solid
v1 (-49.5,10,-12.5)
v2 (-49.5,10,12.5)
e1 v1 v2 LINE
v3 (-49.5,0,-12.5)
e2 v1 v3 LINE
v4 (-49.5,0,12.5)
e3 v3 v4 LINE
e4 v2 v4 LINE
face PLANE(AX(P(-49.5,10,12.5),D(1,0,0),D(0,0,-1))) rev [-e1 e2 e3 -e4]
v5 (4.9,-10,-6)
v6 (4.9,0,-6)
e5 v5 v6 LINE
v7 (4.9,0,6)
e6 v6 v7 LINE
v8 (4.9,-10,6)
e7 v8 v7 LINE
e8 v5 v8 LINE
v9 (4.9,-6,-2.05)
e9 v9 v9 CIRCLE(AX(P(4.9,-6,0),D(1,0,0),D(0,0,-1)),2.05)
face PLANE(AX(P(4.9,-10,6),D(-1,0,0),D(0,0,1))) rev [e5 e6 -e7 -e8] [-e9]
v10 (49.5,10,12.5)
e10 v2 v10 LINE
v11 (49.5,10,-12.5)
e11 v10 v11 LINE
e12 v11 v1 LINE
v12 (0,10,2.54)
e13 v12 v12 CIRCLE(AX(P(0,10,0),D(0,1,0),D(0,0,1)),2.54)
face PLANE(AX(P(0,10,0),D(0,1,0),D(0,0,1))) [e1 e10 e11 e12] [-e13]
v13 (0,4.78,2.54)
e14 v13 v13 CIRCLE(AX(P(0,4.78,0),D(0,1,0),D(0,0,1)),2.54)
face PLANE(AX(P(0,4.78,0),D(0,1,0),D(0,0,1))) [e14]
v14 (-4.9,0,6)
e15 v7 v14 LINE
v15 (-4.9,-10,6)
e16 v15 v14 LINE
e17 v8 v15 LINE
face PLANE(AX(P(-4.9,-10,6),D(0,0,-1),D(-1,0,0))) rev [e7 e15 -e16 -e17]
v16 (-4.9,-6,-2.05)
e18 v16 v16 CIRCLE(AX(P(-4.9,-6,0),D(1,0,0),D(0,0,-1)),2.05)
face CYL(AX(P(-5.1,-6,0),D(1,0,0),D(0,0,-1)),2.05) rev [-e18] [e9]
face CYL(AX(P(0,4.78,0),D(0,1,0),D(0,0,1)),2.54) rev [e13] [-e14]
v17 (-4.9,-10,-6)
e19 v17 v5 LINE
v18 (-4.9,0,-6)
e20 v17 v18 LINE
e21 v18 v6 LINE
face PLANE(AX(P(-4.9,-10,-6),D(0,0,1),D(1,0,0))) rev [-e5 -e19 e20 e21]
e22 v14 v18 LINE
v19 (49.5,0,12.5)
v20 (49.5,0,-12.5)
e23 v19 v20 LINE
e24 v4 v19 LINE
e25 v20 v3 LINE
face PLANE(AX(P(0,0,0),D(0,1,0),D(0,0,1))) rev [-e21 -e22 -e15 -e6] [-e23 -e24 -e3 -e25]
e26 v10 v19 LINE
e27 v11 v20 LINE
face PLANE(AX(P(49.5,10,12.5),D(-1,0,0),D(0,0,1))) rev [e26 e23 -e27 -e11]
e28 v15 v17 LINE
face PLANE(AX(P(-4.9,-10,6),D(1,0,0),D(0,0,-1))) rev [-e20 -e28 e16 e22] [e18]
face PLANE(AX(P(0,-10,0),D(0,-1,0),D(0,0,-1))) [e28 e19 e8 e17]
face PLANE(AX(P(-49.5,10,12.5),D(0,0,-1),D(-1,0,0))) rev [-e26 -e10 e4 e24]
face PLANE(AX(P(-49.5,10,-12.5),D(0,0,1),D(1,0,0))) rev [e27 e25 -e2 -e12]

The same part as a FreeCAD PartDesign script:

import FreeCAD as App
import Part
import Sketcher
Q = App.Units.Quantity

doc = App.newDocument("Part")
body = doc.addObject("PartDesign::Body", "Body")

# Sketch on XZ plane
sketch1 = doc.addObject("Sketcher::SketchObject", "Sketch")
body.addObject(sketch1)
sketch1.AttachmentSupport = (doc.XZ_Plane, [""])
sketch1.MapMode = "FlatFace"
sketch1.addGeometry(Part.LineSegment(App.Vector(-50, -12, 0), App.Vector(-50, 12, 0)), False)
sketch1.addGeometry(Part.LineSegment(App.Vector(-50, 12, 0), App.Vector(50, 12, 0)), False)
sketch1.addGeometry(Part.LineSegment(App.Vector(50, 12, 0), App.Vector(50, -12, 0)), False)
sketch1.addGeometry(Part.LineSegment(App.Vector(50, -12, 0), App.Vector(-50, -12, 0)), False)
sketch1.addConstraint(Sketcher.Constraint("Coincident", 0, 2, 1, 1))
sketch1.addConstraint(Sketcher.Constraint("Coincident", 1, 2, 2, 1))
sketch1.addConstraint(Sketcher.Constraint("Coincident", 2, 2, 3, 1))
sketch1.addConstraint(Sketcher.Constraint("Coincident", 3, 2, 0, 1))
sketch1.addConstraint(Sketcher.Constraint("Vertical", 0))
sketch1.addConstraint(Sketcher.Constraint("Horizontal", 1))
sketch1.addConstraint(Sketcher.Constraint("Vertical", 2))
sketch1.addConstraint(Sketcher.Constraint("Horizontal", 3))
sketch1.addConstraint(Sketcher.Constraint("Symmetric", 0, 2, 2, 2, -1, 1))
sketch1.addConstraint(Sketcher.Constraint("DistanceX", 1, 1, 1, 2, Q("99 mm")))
sketch1.addConstraint(Sketcher.Constraint("DistanceY", 0, 1, 0, 2, Q("25 mm")))
pad1 = doc.addObject("PartDesign::Pad", "Pad")
body.addObject(pad1)
pad1.Profile = sketch1
pad1.Length = 10
pad1.Reversed = True

# Sketch on XZ plane
sketch2 = doc.addObject("Sketcher::SketchObject", "Sketch001")
body.addObject(sketch2)
sketch2.AttachmentSupport = (doc.XZ_Plane, [""])
sketch2.MapMode = "FlatFace"
sketch2.addGeometry(Part.LineSegment(App.Vector(-5, 6, 0), App.Vector(-5, -6, 0)), False)
sketch2.addGeometry(Part.LineSegment(App.Vector(-5, -6, 0), App.Vector(5, -6, 0)), False)
sketch2.addGeometry(Part.LineSegment(App.Vector(5, -6, 0), App.Vector(5, 6, 0)), False)
sketch2.addGeometry(Part.LineSegment(App.Vector(5, 6, 0), App.Vector(-5, 6, 0)), False)
sketch2.addConstraint(Sketcher.Constraint("Coincident", 0, 2, 1, 1))
sketch2.addConstraint(Sketcher.Constraint("Coincident", 1, 2, 2, 1))
sketch2.addConstraint(Sketcher.Constraint("Coincident", 2, 2, 3, 1))
sketch2.addConstraint(Sketcher.Constraint("Coincident", 3, 2, 0, 1))
sketch2.addConstraint(Sketcher.Constraint("Vertical", 0))
sketch2.addConstraint(Sketcher.Constraint("Horizontal", 1))
sketch2.addConstraint(Sketcher.Constraint("Vertical", 2))
sketch2.addConstraint(Sketcher.Constraint("Horizontal", 3))
sketch2.addConstraint(Sketcher.Constraint("Symmetric", 0, 2, 2, 2, -1, 1))
sketch2.addConstraint(Sketcher.Constraint("DistanceY", 0, 2, 0, 1, Q("12 mm")))
sketch2.addConstraint(Sketcher.Constraint("DistanceX", 1, 1, 1, 2, Q("9.8 mm")))
pad2 = doc.addObject("PartDesign::Pad", "Pad001")
body.addObject(pad2)
pad2.Profile = sketch2
pad2.Length = 10

# Sketch on XZ plane
sketch3 = doc.addObject("Sketcher::SketchObject", "Sketch002")
body.addObject(sketch3)
sketch3.AttachmentSupport = (doc.XZ_Plane, [""])
sketch3.MapMode = "FlatFace"
sketch3.AttachmentOffset = App.Placement(App.Vector(0, 0, -10), App.Rotation())
sketch3.addGeometry(Part.Circle(App.Vector(0, 0, 0), App.Vector(0, 0, 1), 2.5), False)
sketch3.addConstraint(Sketcher.Constraint("Coincident", 0, 3, -1, 1))
sketch3.addConstraint(Sketcher.Constraint("Diameter", 0, Q("5.08 mm")))
pocket1 = doc.addObject("PartDesign::Pocket", "Pocket")
body.addObject(pocket1)
pocket1.Profile = sketch3
pocket1.Length = 5.22
pocket1.Reversed = True

# Sketch on YZ plane
sketch4 = doc.addObject("Sketcher::SketchObject", "Sketch003")
body.addObject(sketch4)
sketch4.AttachmentSupport = (doc.YZ_Plane, [""])
sketch4.MapMode = "FlatFace"
sketch4.AttachmentOffset = App.Placement(App.Vector(0, 0, 4.9), App.Rotation())
sketch4.addGeometry(Part.Circle(App.Vector(-6, 0, 0), App.Vector(0, 0, 1), 2), False)
sketch4.addConstraint(Sketcher.Constraint("PointOnObject", 0, 3, -1))
sketch4.addConstraint(Sketcher.Constraint("Diameter", 0, Q("4.1 mm")))
sketch4.addConstraint(Sketcher.Constraint("DistanceX", 0, 3, -1, 1, Q("6 mm")))
pocket2 = doc.addObject("PartDesign::Pocket", "Pocket001")
body.addObject(pocket2)
pocket2.Profile = sketch4
pocket2.Length = 10

doc.recompute()
